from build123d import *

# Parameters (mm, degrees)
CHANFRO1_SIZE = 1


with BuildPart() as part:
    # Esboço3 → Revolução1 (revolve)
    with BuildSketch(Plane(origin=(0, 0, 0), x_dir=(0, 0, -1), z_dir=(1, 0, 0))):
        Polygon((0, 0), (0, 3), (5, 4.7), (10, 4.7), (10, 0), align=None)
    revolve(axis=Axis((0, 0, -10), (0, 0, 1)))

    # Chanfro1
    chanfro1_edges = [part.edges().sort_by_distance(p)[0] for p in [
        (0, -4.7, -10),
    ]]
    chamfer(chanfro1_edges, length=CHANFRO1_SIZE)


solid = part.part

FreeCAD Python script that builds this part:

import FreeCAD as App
import Part
import Sketcher


def edges_at(feature, points):
    """Names of the edges that pass closest to the given points."""
    edges = feature.Shape.Edges
    near = lambda p: min(range(len(edges)), key=lambda i: edges[i].distToShape(Part.Vertex(*p))[0])
    return sorted({f"Edge{near(p) + 1}" for p in points})

doc = App.newDocument("Part")
body = doc.addObject("PartDesign::Body", "Body")

sketch1 = body.newObject("Sketcher::SketchObject", "Sketch")
sketch1.AttachmentSupport = (doc.getObject("YZ_Plane"), [""])
sketch1.MapMode = "FlatFace"
sketch1.addGeometry(Part.LineSegment(App.Vector(3, 0, 0), App.Vector(0, 0, 0)), False)
sketch1.addGeometry(Part.LineSegment(App.Vector(0, 0, 0), App.Vector(0, -10, 0)), False)
sketch1.addGeometry(Part.LineSegment(App.Vector(0, -10, 0), App.Vector(4.7, -10, 0)), False)
sketch1.addGeometry(Part.LineSegment(App.Vector(4.7, -10, 0), App.Vector(4.7, -5, 0)), False)
sketch1.addGeometry(Part.LineSegment(App.Vector(4.7, -5, 0), App.Vector(3, 0, 0)), False)
sketch1.addConstraint(Sketcher.Constraint("Coincident", 0, 2, 1, 1))
sketch1.addConstraint(Sketcher.Constraint("Coincident", 1, 2, 2, 1))
sketch1.addConstraint(Sketcher.Constraint("Coincident", 2, 2, 3, 1))
sketch1.addConstraint(Sketcher.Constraint("Coincident", 3, 2, 4, 1))
sketch1.addConstraint(Sketcher.Constraint("Coincident", 4, 2, 0, 1))
sketch1.addConstraint(Sketcher.Constraint("Horizontal", 0))
sketch1.addConstraint(Sketcher.Constraint("Vertical", 1))
sketch1.addConstraint(Sketcher.Constraint("Horizontal", 2))
sketch1.addConstraint(Sketcher.Constraint("Vertical", 3))
sketch1.addConstraint(Sketcher.Constraint("Coincident", 0, 2, -1, 1))
sketch1.addConstraint(Sketcher.Constraint("DistanceX", 0, 2, 0, 1, 3.0))
sketch1.addConstraint(Sketcher.Constraint("DistanceY", 1, 2, 1, 1, 10.0))
sketch1.addConstraint(Sketcher.Constraint("DistanceY", 3, 1, 3, 2, 5.0))
sketch1.addConstraint(Sketcher.Constraint("DistanceX", 2, 1, 2, 2, 4.7))
revolution = body.newObject("PartDesign::Revolution", "Revolution")
revolution.Profile = sketch1
revolution.ReferenceAxis = (sketch1, ["V_Axis"])
revolution.Angle = 360
doc.recompute()

chamfer = body.newObject("PartDesign::Chamfer", "Chamfer")
chamfer.Base = (revolution, edges_at(revolution, [(0, -4.7, -10)]))
chamfer.Size = 1

doc.recompute()
